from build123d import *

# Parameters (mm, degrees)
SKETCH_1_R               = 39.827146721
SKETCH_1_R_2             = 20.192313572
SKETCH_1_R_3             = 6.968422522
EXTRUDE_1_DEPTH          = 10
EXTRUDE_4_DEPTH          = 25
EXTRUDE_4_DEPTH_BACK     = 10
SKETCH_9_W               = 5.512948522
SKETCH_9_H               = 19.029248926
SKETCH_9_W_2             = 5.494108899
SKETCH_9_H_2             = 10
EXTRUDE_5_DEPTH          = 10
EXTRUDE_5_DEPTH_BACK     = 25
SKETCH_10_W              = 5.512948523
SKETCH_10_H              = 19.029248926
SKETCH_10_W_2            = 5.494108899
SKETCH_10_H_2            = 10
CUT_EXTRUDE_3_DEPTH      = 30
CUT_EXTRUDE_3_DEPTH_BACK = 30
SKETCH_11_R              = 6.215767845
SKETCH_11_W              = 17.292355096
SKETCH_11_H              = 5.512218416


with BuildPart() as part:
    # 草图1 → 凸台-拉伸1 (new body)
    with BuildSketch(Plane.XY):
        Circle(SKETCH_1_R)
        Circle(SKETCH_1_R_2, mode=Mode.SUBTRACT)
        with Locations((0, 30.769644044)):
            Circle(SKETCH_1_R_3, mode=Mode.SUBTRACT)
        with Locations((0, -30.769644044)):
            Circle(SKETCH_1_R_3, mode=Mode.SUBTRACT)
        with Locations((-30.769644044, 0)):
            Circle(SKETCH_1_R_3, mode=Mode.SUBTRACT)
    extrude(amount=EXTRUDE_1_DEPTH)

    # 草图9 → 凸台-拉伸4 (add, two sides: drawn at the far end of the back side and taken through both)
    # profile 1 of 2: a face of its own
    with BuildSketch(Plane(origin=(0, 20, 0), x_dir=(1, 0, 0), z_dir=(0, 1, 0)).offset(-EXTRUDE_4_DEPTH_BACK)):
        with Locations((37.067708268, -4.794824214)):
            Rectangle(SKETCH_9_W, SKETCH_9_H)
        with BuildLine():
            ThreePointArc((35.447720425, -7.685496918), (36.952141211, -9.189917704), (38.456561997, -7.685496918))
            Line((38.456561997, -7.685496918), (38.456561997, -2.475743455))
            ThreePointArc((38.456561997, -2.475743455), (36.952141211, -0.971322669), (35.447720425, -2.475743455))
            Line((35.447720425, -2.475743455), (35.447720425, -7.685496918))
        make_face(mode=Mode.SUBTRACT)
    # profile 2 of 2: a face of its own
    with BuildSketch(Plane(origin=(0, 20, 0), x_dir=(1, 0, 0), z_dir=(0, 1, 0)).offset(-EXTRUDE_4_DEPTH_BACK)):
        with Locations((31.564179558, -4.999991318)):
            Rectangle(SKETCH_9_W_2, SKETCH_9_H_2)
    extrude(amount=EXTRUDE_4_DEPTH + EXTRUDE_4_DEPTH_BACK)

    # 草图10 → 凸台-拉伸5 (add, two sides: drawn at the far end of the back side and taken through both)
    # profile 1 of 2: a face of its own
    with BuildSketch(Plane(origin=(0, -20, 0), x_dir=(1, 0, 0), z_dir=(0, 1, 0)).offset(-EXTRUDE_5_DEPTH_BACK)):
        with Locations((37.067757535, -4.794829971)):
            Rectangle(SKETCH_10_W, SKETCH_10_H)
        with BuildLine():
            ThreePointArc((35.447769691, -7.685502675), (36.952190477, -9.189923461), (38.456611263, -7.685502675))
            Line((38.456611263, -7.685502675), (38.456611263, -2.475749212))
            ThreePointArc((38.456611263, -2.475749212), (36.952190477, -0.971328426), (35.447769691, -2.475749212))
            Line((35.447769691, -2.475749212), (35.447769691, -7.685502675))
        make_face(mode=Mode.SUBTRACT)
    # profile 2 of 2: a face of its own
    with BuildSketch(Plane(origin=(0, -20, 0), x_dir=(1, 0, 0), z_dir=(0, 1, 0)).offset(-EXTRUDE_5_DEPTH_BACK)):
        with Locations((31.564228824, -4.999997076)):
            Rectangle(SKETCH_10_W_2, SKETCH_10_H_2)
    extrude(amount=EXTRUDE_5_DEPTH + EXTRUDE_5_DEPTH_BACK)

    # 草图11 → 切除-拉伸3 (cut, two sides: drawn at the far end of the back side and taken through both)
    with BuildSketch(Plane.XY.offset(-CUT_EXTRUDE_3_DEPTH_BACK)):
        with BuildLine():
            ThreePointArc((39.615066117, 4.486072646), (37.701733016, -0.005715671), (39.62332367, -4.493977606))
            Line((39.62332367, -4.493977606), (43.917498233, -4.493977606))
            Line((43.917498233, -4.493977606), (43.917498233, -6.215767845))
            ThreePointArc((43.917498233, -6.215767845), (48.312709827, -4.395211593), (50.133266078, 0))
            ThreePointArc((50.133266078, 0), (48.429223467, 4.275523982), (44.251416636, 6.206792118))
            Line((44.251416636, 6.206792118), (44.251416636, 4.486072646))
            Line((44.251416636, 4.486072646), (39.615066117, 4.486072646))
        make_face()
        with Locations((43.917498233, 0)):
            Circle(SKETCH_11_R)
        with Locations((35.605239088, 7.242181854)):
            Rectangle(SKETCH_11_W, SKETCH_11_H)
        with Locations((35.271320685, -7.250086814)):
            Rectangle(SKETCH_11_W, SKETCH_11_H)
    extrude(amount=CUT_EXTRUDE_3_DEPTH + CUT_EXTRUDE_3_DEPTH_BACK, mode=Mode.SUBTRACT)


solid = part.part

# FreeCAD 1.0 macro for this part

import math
import FreeCAD as App
import Part
import Sketcher

V = App.Vector
Q = App.Units.Quantity


def add_polygon(sketch, points):
    """Adds a closed chain of lines whose ends are joined by coincident constraints."""
    first, n = sketch.GeometryCount, len(points)
    for a, b in zip(points, points[1:] + points[:1]):
        sketch.addGeometry(Part.LineSegment(App.Vector(*a, 0), App.Vector(*b, 0)), False)
    for i in range(n):
        sketch.addConstraint(Sketcher.Constraint("Coincident", first + i, 2, first + (i + 1) % n, 1))

doc = App.newDocument("Part")
body = doc.addObject("PartDesign::Body", "Body")

sketch1 = body.newObject("Sketcher::SketchObject", "Sketch")
sketch1.AttachmentSupport = (doc.getObject("XY_Plane"), [""])
sketch1.MapMode = "FlatFace"
sketch1.addGeometry([
    Part.Circle(V(0, 0, 0), V(0, 0, 1), 39.827147),
    Part.Circle(V(0, -30.769644, 0), V(0, 0, 1), 6.968423),
    Part.Circle(V(-30.769644, 0, 0), V(0, 0, 1), 6.968423),
    Part.Circle(V(0, 0, 0), V(0, 0, 1), 20.192314),
    Part.Circle(V(0, 30.769644, 0), V(0, 0, 1), 6.968423),
], False)
sketch1.addConstraint([
    Sketcher.Constraint("Coincident", 0, 3, -1, 1),
    Sketcher.Constraint("Coincident", 3, 3, -1, 1),
    Sketcher.Constraint("Equal", 1, 2),
    Sketcher.Constraint("Equal", 2, 4),
    Sketcher.Constraint("Symmetric", 1, 3, 4, 3, -1, 1),
    Sketcher.Constraint("PointOnObject", 1, 3, -2),
    Sketcher.Constraint("PointOnObject", 2, 3, -1),
    Sketcher.Constraint("Diameter", 0, Q("79.654293 mm")),
    Sketcher.Constraint("Diameter", 1, Q("13.936845 mm")),
    Sketcher.Constraint("Diameter", 3, Q("40.384627 mm")),
    Sketcher.Constraint("DistanceY", 1, 3, 4, 3, Q("61.539288 mm")),
    Sketcher.Constraint("DistanceX", 2, 3, -1, 1, Q("30.769644 mm")),
])
pad1 = body.newObject("PartDesign::Pad", "Pad")
pad1.Profile = sketch1
pad1.Length = 10

sketch2 = body.newObject("Sketcher::SketchObject", "Sketch001")
sketch2.AttachmentSupport = (doc.getObject("XZ_Plane"), [""])
sketch2.MapMode = "FlatFace"
sketch2.AttachmentOffset = App.Placement(V(0, 0, -20), App.Rotation())
add_polygon(sketch2, [(34.311234, 9.999991), (34.311234, 14.309449), (39.824183, 14.309449), (39.824183, -4.7198), (34.311234, -4.7198), (34.311234, -0.000009), (28.817125, -0.000009), (28.817125, 9.999991)])
sketch2.addGeometry(Part.ArcOfCircle(Part.Circle(V(36.952141, 7.685497, 0), V(0, 0, 1), 1.504421), math.radians(0), math.radians(180)), False)
sketch2.addGeometry(Part.LineSegment(V(35.44772, 7.685497, 0), V(35.44772, 2.475743, 0)), False)
sketch2.addGeometry(Part.ArcOfCircle(Part.Circle(V(36.952141, 2.475743, 0), V(0, 0, 1), 1.504421), math.radians(180), math.radians(360)), False)
sketch2.addGeometry(Part.LineSegment(V(38.456562, 2.475743, 0), V(38.456562, 7.685497, 0)), False)
sketch2.addConstraint([
    Sketcher.Constraint("Tangent", 8, 2, 9, 1),
    Sketcher.Constraint("Tangent", 9, 2, 10, 1),
    Sketcher.Constraint("Tangent", 10, 2, 11, 1),
    Sketcher.Constraint("Tangent", 11, 2, 8, 1),
    Sketcher.Constraint("Vertical", 0),
    Sketcher.Constraint("Horizontal", 1),
    Sketcher.Constraint("Vertical", 2),
    Sketcher.Constraint("Horizontal", 3),
    Sketcher.Constraint("Vertical", 4),
    Sketcher.Constraint("Horizontal", 5),
    Sketcher.Constraint("Vertical", 6),
    Sketcher.Constraint("Horizontal", 7),
    Sketcher.Constraint("Vertical", 9),
    Sketcher.Constraint("Vertical", 11),
    Sketcher.Constraint("Vertical", 0, 2, 3, 2),
    Sketcher.Constraint("DistanceY", 6, 1, 6, 2, Q("10 mm")),
    Sketcher.Constraint("Radius", 8, Q("1.504421 mm")),
    Sketcher.Constraint("DistanceX", 1, 1, 1, 2, Q("5.512949 mm")),
    Sketcher.Constraint("DistanceX", 5, 2, 5, 1, Q("5.494109 mm")),
    Sketcher.Constraint("DistanceY", 2, 2, 2, 1, Q("19.029249 mm")),
    Sketcher.Constraint("DistanceY", 4, 1, 4, 2, Q("4.719792 mm")),
    Sketcher.Constraint("DistanceY", 2, 2, -1, 1, Q("4.7198 mm")),
    Sketcher.Constraint("DistanceY", 9, 2, 9, 1, Q("5.209753 mm")),
    Sketcher.Constraint("DistanceX", -1, 1, 8, 3, Q("36.952141 mm")),
    Sketcher.Constraint("DistanceY", 8, 3, 0, 2, Q("6.623952 mm")),
    Sketcher.Constraint("DistanceX", 8, 3, 1, 2, Q("2.872041 mm")),
])
pad2 = body.newObject("PartDesign::Pad", "Pad001")
pad2.Profile = sketch2
pad2.Type = "TwoLengths"
pad2.Length = 25
pad2.Length2 = 10
pad2.Reversed = True

sketch3 = body.newObject("Sketcher::SketchObject", "Sketch002")
sketch3.AttachmentSupport = (doc.getObject("XZ_Plane"), [""])
sketch3.MapMode = "FlatFace"
sketch3.AttachmentOffset = App.Placement(V(0, 0, 20), App.Rotation())
add_polygon(sketch3, [(34.311283, 9.999997), (34.311283, 14.309454), (39.824232, 14.309454), (39.824232, -4.719794), (34.311283, -4.719794), (34.311283, -0.000003), (28.817174, -0.000003), (28.817174, 9.999997)])
sketch3.addGeometry(Part.ArcOfCircle(Part.Circle(V(36.95219, 7.685503, 0), V(0, 0, 1), 1.504421), math.radians(0), math.radians(180)), False)
sketch3.addGeometry(Part.LineSegment(V(35.44777, 7.685503, 0), V(35.44777, 2.475749, 0)), False)
sketch3.addGeometry(Part.ArcOfCircle(Part.Circle(V(36.95219, 2.475749, 0), V(0, 0, 1), 1.504421), math.radians(180), math.radians(360)), False)
sketch3.addGeometry(Part.LineSegment(V(38.456611, 2.475749, 0), V(38.456611, 7.685503, 0)), False)
sketch3.addConstraint([
    Sketcher.Constraint("Tangent", 8, 2, 9, 1),
    Sketcher.Constraint("Tangent", 9, 2, 10, 1),
    Sketcher.Constraint("Tangent", 10, 2, 11, 1),
    Sketcher.Constraint("Tangent", 11, 2, 8, 1),
    Sketcher.Constraint("Vertical", 0),
    Sketcher.Constraint("Horizontal", 1),
    Sketcher.Constraint("Vertical", 2),
    Sketcher.Constraint("Horizontal", 3),
    Sketcher.Constraint("Vertical", 4),
    Sketcher.Constraint("Horizontal", 5),
    Sketcher.Constraint("Vertical", 6),
    Sketcher.Constraint("Horizontal", 7),
    Sketcher.Constraint("Vertical", 9),
    Sketcher.Constraint("Vertical", 11),
    Sketcher.Constraint("Vertical", 0, 2, 3, 2),
    Sketcher.Constraint("DistanceY", 6, 1, 6, 2, Q("10 mm")),
    Sketcher.Constraint("Radius", 8, Q("1.504421 mm")),
    Sketcher.Constraint("DistanceX", 1, 1, 1, 2, Q("5.512949 mm")),
    Sketcher.Constraint("DistanceX", 5, 2, 5, 1, Q("5.494109 mm")),
    Sketcher.Constraint("DistanceY", 2, 2, 2, 1, Q("19.029249 mm")),
    Sketcher.Constraint("DistanceY", 4, 1, 4, 2, Q("4.719792 mm")),
    Sketcher.Constraint("DistanceY", 9, 2, 9, 1, Q("5.209753 mm")),
    Sketcher.Constraint("DistanceX", -1, 1, 8, 3, Q("36.95219 mm")),
    Sketcher.Constraint("DistanceY", -1, 1, 10, 3, Q("2.475749 mm")),
    Sketcher.Constraint("DistanceX", -1, 1, 1, 2, Q("39.824232 mm")),
    Sketcher.Constraint("DistanceY", 8, 3, 0, 2, Q("6.623952 mm")),
])
pad3 = body.newObject("PartDesign::Pad", "Pad002")
pad3.Profile = sketch3
pad3.Type = "TwoLengths"
pad3.Length = 10
pad3.Length2 = 25
pad3.Reversed = True

sketch4 = body.newObject("Sketcher::SketchObject", "Sketch003")
sketch4.AttachmentSupport = (doc.getObject("XY_Plane"), [""])
sketch4.MapMode = "FlatFace"
sketch4.addGeometry([
    Part.ArcOfCircle(Part.Circle(V(43.917498, 0, 0), V(0, 0, 1), 6.215768), math.radians(133.802948), math.radians(226.302424)),
    Part.LineSegment(V(39.623324, -4.493978, 0), V(26.625143, -4.493978, 0)),
    Part.LineSegment(V(26.625143, -4.493978, 0), V(26.625143, -10.006196, 0)),
    Part.LineSegment(V(26.625143, -10.006196, 0), V(43.917498, -10.006196, 0)),
    Part.LineSegment(V(43.917498, -10.006196, 0), V(43.917498, -6.215768, 0)),
    Part.ArcOfCircle(Part.Circle(V(43.917498, 0, 0), V(0, 0, 1), 6.215768), math.radians(-90), math.radians(0)),
    Part.ArcOfCircle(Part.Circle(V(43.917498, 0, 0), V(0, 0, 1), 6.215768), math.radians(0), math.radians(86.920521)),
    Part.LineSegment(V(44.251417, 6.206792, 0), V(44.251417, 9.998291, 0)),
    Part.LineSegment(V(44.251417, 9.998291, 0), V(26.959062, 9.998291, 0)),
    Part.LineSegment(V(26.959062, 9.998291, 0), V(26.959062, 4.486073, 0)),
    Part.LineSegment(V(26.959062, 4.486073, 0), V(39.615066, 4.486073, 0)),
], False)
sketch4.addConstraint([
    Sketcher.Constraint("Coincident", 0, 2, 1, 1),
    Sketcher.Constraint("Coincident", 1, 2, 2, 1),
    Sketcher.Constraint("Coincident", 2, 2, 3, 1),
    Sketcher.Constraint("Coincident", 3, 2, 4, 1),
    Sketcher.Constraint("Coincident", 4, 2, 5, 1),
    Sketcher.Constraint("Tangent", 5, 2, 6, 1),
    Sketcher.Constraint("Coincident", 6, 2, 7, 1),
    Sketcher.Constraint("Coincident", 7, 2, 8, 1),
    Sketcher.Constraint("Coincident", 8, 2, 9, 1),
    Sketcher.Constraint("Coincident", 9, 2, 10, 1),
    Sketcher.Constraint("Coincident", 10, 2, 0, 1),
    Sketcher.Constraint("Horizontal", 1),
    Sketcher.Constraint("Vertical", 2),
    Sketcher.Constraint("Horizontal", 3),
    Sketcher.Constraint("Vertical", 4),
    Sketcher.Constraint("Vertical", 7),
    Sketcher.Constraint("Horizontal", 8),
    Sketcher.Constraint("Vertical", 9),
    Sketcher.Constraint("Horizontal", 10),
    Sketcher.Constraint("Coincident", 5, 3, 0, 3),
    Sketcher.Constraint("Equal", 0, 5),
    Sketcher.Constraint("Equal", 5, 6),
    Sketcher.Constraint("PointOnObject", 0, 3, -1),
    Sketcher.Constraint("PointOnObject", 5, 2, -1),
    Sketcher.Constraint("Vertical", 6, 3, 3, 2),
    Sketcher.Constraint("Equal", 3, 8),
    Sketcher.Constraint("Equal", 2, 9),
    Sketcher.Constraint("DistanceY", 7, 1, 7, 2, Q("3.791499 mm")),
    Sketcher.Constraint("Radius", 0, Q("6.215768 mm")),
    Sketcher.Constraint("DistanceX", 1, 2, 1, 1, Q("12.998181 mm")),
    Sketcher.Constraint("DistanceY", 2, 2, 2, 1, Q("5.512218 mm")),
    Sketcher.Constraint("DistanceY", 4, 1, 4, 2, Q("3.790428 mm")),
    Sketcher.Constraint("DistanceX", -1, 1, 0, 3, Q("43.917498 mm")),
    Sketcher.Constraint("DistanceX", 10, 1, 10, 2, Q("12.656005 mm")),
])
pocket1 = body.newObject("PartDesign::Pocket", "Pocket")
pocket1.Profile = sketch4
pocket1.Type = "ThroughAll"
pocket1.Midplane = True

doc.recompute()
